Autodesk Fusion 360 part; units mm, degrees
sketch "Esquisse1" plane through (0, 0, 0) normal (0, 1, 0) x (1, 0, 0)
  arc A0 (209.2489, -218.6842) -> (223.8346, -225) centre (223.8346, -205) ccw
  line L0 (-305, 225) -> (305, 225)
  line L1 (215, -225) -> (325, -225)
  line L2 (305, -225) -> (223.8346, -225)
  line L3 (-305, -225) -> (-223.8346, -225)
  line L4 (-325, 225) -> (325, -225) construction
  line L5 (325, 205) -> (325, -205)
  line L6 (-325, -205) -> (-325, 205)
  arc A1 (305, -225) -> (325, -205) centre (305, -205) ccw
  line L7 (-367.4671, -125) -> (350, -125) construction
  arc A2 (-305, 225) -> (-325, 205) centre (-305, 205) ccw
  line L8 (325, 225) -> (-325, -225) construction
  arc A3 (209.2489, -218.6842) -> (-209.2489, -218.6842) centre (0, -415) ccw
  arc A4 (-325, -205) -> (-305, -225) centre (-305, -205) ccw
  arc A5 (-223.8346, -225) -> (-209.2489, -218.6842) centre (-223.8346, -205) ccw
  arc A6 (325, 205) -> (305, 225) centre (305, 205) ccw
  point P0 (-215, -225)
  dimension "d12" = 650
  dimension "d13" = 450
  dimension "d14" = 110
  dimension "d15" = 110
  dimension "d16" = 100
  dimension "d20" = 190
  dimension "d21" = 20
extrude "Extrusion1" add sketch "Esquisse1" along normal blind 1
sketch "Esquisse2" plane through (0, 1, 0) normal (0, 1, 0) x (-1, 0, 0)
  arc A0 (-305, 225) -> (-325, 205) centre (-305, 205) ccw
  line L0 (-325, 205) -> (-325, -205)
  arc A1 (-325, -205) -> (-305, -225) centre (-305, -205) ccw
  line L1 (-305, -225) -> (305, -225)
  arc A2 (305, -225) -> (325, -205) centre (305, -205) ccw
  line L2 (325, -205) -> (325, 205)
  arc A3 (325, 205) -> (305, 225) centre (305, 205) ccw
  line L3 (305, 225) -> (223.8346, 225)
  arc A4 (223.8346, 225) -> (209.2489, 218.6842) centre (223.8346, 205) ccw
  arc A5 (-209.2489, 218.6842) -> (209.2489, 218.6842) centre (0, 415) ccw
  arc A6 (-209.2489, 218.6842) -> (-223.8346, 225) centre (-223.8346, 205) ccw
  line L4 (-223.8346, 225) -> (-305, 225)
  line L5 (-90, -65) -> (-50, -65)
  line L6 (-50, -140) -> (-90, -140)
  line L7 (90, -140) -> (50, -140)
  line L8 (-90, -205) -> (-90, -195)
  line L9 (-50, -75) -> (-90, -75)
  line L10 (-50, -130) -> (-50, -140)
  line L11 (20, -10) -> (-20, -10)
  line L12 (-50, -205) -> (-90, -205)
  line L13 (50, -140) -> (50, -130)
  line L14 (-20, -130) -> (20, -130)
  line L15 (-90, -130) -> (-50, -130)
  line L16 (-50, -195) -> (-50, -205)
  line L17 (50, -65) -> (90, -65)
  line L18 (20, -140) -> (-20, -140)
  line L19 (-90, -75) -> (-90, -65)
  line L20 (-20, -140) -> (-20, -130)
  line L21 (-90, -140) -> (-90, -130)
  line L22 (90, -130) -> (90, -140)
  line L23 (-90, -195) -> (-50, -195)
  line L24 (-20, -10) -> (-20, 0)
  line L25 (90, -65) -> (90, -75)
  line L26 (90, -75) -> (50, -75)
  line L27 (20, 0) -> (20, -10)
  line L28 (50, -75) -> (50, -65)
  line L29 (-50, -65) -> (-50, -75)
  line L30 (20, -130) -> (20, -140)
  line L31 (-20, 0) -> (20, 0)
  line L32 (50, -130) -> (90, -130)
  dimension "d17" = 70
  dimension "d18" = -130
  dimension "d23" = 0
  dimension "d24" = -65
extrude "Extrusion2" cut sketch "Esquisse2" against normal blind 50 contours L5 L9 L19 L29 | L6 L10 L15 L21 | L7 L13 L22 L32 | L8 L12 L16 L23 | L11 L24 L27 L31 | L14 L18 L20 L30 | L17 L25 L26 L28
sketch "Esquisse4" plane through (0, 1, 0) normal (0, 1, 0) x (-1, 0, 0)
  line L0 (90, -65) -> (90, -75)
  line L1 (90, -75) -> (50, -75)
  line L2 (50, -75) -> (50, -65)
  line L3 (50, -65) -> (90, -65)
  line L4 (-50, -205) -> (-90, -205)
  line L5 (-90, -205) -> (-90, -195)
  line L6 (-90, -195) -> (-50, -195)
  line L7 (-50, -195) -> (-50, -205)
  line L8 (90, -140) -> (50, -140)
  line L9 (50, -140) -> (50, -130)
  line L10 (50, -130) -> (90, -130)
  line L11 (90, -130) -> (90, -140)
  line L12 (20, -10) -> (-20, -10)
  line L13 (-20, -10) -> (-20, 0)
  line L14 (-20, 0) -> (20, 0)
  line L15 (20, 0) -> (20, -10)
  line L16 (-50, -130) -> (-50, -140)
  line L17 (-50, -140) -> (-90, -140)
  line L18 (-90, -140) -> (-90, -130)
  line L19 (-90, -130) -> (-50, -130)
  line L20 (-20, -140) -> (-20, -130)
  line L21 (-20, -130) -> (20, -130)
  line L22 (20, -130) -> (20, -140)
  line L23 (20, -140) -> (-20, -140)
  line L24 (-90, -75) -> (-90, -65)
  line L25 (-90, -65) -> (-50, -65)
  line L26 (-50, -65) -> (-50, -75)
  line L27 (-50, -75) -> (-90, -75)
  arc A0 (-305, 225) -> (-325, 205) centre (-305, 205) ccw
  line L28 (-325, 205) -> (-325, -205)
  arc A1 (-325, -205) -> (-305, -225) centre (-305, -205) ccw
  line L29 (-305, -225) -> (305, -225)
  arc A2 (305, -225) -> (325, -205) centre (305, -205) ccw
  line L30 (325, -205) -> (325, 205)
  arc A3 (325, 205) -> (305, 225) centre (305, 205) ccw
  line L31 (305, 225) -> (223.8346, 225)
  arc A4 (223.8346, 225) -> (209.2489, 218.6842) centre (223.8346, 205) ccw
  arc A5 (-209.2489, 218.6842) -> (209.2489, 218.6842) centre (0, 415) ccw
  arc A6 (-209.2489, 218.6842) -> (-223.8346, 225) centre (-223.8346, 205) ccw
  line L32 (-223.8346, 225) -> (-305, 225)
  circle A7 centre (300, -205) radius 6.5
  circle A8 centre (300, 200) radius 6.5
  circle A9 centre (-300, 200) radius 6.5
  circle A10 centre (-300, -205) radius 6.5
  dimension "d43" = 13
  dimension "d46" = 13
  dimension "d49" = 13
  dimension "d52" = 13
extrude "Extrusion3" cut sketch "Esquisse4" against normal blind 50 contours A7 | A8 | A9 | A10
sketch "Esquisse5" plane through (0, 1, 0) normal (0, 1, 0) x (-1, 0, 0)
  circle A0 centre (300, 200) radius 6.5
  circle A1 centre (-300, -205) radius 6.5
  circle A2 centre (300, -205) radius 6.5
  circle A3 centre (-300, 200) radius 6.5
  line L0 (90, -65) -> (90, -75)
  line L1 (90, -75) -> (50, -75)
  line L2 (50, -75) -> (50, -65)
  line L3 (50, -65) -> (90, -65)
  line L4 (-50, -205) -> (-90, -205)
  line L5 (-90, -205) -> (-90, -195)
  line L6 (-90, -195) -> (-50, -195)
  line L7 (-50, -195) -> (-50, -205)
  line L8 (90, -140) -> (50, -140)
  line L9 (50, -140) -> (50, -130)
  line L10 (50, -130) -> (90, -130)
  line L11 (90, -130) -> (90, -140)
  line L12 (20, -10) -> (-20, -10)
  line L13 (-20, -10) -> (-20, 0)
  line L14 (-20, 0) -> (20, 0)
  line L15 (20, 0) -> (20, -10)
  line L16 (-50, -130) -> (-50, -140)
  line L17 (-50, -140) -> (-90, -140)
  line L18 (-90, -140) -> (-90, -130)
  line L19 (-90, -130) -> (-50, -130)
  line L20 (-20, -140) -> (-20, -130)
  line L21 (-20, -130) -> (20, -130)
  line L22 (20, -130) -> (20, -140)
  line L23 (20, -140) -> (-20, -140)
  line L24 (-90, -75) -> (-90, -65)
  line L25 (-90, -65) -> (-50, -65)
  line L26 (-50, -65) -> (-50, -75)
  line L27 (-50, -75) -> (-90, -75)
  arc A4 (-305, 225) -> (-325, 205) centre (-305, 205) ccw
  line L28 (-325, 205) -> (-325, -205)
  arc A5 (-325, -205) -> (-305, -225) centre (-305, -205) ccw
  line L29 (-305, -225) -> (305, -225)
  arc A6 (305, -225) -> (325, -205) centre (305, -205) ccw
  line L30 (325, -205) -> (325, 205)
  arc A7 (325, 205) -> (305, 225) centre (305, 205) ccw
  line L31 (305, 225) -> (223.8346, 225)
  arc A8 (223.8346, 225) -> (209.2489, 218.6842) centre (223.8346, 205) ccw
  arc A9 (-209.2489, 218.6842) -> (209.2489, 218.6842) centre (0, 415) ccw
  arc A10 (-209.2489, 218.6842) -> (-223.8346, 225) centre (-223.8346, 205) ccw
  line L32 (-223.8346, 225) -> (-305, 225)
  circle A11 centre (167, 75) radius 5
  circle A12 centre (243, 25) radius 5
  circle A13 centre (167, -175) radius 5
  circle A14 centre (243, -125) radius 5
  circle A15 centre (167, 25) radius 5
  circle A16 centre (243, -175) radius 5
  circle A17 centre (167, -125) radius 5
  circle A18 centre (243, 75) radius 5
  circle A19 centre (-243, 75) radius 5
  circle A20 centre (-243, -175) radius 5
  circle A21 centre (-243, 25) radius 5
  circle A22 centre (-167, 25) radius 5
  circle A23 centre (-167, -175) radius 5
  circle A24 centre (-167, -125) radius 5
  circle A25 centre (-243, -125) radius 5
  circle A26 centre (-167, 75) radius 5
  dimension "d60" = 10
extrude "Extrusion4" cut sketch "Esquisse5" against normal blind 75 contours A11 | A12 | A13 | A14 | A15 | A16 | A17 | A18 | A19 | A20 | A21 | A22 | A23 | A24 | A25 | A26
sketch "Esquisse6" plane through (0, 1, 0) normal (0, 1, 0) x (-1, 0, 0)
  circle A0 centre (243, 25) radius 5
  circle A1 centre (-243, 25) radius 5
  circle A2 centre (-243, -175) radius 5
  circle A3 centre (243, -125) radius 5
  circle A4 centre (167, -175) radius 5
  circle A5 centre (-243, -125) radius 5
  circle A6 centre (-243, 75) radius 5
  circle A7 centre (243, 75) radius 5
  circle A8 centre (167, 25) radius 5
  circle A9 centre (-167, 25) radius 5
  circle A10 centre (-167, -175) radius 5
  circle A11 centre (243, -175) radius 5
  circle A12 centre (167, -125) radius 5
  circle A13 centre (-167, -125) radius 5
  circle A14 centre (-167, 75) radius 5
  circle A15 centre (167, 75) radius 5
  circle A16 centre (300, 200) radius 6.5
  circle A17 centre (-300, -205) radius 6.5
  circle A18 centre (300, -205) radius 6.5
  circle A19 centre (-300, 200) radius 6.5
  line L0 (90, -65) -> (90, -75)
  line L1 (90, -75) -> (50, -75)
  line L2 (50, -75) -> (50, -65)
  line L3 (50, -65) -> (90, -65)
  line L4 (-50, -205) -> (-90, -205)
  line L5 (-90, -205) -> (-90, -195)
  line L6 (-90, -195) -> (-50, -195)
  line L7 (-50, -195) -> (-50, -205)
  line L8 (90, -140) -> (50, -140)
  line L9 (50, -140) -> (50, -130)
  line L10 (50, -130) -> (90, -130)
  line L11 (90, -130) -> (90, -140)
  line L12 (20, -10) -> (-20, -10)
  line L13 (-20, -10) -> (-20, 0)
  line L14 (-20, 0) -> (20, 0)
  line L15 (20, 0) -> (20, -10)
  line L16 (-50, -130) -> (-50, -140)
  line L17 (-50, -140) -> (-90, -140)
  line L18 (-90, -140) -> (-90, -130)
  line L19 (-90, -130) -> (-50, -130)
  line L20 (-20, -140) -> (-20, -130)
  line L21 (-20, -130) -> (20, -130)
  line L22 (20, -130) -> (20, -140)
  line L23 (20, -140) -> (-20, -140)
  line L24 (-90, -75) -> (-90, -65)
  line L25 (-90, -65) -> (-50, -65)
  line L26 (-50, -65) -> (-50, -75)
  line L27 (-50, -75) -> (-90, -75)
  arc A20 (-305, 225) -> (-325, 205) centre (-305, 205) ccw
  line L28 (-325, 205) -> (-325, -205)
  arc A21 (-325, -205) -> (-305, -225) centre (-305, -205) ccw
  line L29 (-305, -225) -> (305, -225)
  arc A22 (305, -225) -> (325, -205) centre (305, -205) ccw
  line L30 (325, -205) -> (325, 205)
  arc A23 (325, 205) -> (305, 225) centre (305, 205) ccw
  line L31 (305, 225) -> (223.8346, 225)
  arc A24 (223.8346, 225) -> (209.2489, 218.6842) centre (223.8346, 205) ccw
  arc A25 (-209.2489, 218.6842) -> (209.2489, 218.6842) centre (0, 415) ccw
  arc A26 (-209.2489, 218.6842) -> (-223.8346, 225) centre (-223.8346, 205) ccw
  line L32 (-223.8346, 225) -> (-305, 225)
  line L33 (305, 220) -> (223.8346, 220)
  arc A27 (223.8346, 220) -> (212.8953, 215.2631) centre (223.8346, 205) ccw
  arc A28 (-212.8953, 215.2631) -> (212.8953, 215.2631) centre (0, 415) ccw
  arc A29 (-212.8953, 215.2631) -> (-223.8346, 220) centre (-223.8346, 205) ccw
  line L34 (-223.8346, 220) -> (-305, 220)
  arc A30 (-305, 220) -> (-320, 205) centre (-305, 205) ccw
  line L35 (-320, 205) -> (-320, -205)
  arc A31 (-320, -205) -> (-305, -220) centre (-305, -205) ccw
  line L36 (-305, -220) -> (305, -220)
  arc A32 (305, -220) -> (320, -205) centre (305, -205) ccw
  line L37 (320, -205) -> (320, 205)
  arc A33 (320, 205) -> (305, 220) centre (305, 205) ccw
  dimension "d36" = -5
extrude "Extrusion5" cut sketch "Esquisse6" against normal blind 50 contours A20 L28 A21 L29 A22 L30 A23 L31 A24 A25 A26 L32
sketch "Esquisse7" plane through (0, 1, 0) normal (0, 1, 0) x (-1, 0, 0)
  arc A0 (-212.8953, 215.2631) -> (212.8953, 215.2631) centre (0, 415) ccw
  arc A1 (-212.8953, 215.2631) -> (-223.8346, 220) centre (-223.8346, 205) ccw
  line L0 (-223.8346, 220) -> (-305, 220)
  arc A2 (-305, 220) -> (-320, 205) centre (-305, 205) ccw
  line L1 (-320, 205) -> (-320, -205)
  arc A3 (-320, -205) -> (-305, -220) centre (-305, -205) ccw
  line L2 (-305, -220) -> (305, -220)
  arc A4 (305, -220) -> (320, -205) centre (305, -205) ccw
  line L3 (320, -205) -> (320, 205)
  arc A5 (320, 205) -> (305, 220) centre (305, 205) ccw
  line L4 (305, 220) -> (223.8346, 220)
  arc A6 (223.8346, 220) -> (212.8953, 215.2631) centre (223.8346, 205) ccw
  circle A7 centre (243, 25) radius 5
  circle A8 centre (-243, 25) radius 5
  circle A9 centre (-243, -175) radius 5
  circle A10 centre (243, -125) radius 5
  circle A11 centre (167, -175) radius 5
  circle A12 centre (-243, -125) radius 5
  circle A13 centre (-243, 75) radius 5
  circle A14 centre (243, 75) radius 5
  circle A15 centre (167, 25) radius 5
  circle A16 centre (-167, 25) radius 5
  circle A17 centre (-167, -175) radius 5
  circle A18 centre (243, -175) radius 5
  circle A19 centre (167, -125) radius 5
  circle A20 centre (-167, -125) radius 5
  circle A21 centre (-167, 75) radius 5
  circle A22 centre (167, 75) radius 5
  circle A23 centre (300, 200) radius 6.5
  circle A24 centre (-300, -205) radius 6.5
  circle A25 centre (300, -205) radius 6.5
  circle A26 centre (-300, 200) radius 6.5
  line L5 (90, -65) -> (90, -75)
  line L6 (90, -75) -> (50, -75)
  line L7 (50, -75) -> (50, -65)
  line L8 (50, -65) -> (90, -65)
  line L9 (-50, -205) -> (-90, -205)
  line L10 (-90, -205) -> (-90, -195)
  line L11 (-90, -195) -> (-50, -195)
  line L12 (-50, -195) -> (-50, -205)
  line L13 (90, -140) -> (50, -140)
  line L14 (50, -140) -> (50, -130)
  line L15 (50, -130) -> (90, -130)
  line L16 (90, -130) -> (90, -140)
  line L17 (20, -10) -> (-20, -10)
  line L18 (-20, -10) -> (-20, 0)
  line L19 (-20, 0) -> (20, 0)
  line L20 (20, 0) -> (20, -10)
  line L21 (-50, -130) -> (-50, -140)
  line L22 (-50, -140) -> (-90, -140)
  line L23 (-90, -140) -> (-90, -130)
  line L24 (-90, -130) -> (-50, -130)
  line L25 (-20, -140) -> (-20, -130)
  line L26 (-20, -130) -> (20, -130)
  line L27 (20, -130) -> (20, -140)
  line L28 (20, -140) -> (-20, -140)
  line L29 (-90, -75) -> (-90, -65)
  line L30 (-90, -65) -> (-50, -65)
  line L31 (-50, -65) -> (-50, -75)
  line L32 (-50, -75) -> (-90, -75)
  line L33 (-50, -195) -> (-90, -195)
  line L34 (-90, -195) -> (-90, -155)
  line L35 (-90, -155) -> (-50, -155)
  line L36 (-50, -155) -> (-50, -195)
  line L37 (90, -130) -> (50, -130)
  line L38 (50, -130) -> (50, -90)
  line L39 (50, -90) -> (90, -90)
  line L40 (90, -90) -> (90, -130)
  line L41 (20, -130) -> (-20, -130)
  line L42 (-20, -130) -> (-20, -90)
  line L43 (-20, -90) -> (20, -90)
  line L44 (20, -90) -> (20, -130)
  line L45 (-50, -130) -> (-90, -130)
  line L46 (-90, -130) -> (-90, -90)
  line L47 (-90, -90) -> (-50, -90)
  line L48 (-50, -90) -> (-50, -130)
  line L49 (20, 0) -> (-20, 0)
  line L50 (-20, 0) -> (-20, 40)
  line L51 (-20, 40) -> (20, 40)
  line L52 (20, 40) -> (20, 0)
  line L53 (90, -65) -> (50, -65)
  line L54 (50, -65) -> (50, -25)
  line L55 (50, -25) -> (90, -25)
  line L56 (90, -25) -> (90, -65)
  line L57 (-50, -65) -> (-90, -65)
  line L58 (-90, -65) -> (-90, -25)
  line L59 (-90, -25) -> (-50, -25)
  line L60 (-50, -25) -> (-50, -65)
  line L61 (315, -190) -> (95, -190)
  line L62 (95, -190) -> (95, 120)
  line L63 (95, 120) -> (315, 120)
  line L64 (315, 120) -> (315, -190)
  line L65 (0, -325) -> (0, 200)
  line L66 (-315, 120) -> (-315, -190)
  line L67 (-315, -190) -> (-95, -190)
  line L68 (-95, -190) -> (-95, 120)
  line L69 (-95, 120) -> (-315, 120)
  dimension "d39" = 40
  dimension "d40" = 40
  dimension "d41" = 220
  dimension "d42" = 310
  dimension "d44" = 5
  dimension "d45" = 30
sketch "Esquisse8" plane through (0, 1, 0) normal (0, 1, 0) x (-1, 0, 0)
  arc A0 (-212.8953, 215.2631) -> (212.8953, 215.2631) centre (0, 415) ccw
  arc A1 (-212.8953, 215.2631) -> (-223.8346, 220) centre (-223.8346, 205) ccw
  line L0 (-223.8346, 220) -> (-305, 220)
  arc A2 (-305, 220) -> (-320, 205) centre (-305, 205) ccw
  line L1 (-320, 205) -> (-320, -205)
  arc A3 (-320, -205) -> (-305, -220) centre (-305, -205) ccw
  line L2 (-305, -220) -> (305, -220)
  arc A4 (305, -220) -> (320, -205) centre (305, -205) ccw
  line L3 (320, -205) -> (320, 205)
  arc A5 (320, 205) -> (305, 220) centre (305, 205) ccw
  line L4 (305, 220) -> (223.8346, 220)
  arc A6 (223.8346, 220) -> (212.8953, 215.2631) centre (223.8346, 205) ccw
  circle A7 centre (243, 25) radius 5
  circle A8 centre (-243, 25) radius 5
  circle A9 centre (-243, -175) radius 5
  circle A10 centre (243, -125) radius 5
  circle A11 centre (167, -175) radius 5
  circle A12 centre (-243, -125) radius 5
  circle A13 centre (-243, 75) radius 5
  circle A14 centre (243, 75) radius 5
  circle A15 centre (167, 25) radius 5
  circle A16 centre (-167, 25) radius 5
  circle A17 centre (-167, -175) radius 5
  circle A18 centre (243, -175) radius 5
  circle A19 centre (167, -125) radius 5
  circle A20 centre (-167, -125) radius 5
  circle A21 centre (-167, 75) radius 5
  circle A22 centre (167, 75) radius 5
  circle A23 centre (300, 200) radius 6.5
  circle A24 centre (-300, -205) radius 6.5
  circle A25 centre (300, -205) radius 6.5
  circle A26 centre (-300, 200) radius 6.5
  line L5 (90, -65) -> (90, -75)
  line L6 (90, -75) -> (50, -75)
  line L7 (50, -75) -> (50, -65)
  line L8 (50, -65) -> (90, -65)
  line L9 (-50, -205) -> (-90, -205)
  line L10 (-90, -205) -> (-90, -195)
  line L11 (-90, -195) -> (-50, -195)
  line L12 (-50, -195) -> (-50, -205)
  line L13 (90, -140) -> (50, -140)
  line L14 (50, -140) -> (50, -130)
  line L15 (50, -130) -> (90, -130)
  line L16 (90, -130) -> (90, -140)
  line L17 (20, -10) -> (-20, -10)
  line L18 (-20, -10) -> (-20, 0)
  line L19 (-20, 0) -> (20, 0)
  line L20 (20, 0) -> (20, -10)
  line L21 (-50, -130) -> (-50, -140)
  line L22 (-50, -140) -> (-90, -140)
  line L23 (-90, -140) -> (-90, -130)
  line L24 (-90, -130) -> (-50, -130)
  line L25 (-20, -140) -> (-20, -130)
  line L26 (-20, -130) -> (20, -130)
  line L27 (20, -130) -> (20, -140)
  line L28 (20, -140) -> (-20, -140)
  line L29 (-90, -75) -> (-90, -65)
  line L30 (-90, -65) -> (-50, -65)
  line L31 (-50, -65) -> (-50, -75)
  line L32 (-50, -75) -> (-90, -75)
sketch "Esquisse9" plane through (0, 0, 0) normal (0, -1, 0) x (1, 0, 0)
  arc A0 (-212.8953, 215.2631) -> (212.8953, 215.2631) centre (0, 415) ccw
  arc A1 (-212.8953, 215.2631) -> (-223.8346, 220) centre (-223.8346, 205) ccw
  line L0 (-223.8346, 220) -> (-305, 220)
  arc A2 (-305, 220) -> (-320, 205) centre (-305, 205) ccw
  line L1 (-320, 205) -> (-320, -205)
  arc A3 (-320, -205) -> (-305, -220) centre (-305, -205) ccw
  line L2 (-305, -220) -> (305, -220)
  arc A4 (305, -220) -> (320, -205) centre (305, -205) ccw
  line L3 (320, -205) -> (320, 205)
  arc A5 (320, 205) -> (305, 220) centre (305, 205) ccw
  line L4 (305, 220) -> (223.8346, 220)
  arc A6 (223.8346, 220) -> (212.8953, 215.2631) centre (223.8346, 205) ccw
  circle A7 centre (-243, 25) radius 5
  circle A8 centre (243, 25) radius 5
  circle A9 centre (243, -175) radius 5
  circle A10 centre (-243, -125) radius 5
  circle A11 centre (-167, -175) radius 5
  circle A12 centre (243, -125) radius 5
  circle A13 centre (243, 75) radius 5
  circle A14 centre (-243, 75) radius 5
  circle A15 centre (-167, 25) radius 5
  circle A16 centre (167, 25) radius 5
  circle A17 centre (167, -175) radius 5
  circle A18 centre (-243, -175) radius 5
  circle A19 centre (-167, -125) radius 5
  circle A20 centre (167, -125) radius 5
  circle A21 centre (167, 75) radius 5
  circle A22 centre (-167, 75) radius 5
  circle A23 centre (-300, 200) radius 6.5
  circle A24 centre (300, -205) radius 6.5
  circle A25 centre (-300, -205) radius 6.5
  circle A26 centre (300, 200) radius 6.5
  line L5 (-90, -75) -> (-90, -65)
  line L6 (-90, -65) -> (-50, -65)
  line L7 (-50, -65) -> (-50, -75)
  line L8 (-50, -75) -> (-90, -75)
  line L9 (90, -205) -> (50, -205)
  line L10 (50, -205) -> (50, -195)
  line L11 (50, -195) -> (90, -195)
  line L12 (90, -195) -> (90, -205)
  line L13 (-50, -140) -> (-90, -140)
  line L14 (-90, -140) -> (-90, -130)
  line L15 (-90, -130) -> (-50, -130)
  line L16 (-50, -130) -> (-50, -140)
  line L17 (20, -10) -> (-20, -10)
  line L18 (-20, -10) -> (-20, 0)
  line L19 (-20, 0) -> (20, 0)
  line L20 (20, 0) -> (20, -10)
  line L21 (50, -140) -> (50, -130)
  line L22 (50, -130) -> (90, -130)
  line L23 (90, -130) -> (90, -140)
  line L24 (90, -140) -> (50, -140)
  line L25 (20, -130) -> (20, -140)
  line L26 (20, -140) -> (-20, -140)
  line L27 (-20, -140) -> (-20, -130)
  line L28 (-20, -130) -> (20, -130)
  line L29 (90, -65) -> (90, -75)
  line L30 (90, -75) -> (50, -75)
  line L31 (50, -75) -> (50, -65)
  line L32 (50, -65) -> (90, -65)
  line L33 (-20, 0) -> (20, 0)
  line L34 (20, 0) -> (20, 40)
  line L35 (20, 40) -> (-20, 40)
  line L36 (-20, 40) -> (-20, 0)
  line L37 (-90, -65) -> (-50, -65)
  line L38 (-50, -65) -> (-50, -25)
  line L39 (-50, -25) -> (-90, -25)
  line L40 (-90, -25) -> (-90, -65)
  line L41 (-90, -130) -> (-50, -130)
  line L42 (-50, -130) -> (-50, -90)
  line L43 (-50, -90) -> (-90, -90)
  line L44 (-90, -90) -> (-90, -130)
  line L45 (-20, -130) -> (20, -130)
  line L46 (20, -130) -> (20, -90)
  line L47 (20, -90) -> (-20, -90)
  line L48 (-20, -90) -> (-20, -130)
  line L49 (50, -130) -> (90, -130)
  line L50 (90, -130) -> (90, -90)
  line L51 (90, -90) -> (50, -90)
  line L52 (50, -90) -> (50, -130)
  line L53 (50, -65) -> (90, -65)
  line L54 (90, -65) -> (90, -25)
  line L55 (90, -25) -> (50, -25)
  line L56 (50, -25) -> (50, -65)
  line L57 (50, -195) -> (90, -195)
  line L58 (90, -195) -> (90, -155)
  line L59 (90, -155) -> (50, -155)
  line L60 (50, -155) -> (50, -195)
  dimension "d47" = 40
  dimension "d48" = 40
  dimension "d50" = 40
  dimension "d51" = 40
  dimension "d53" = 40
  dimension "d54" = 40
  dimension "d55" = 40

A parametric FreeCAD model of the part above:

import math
import FreeCAD as App
import Part
import Sketcher

V = App.Vector
Q = App.Units.Quantity

doc = App.newDocument("Part")
body = doc.addObject("PartDesign::Body", "Body")

# Sketch on XZ plane
sketch1 = body.newObject("Sketcher::SketchObject", "Sketch")
sketch1.AttachmentSupport = (doc.getObject("XZ_Plane"), [""])
sketch1.MapMode = "FlatFace"
sketch1.addGeometry([
    Part.ArcOfCircle(Part.Circle(V(0, 415, 0), V(0, 0, 1), 287), math.radians(-137), math.radians(-43)),  # 0
    Part.ArcOfCircle(Part.Circle(V(224, 205, 0), V(0, 0, 1), 20), math.radians(90), math.radians(137)),  # 1
    Part.LineSegment(V(224, 225, 0), V(305, 225, 0)),  # 2
    Part.ArcOfCircle(Part.Circle(V(305, 205, 0), V(0, 0, 1), 20), math.radians(0), math.radians(90)),  # 3
    Part.LineSegment(V(325, 205, 0), V(325, -205, 0)),  # 4
    Part.ArcOfCircle(Part.Circle(V(305, -205, 0), V(0, 0, 1), 20), math.radians(-90), math.radians(0)),  # 5
    Part.LineSegment(V(305, -225, 0), V(-305, -225, 0)),  # 6
    Part.ArcOfCircle(Part.Circle(V(-305, -205, 0), V(0, 0, 1), 20), math.radians(180), math.radians(270)),  # 7
    Part.LineSegment(V(-325, -205, 0), V(-325, 205, 0)),  # 8
    Part.ArcOfCircle(Part.Circle(V(-305, 205, 0), V(0, 0, 1), 20), math.radians(90), math.radians(180)),  # 9
    Part.LineSegment(V(-305, 225, 0), V(-224, 225, 0)),  # 10
    Part.ArcOfCircle(Part.Circle(V(-224, 205, 0), V(0, 0, 1), 20), math.radians(43), math.radians(90)),  # 11
], False)
sketch1.addConstraint([
    Sketcher.Constraint("Tangent", 0, 2, 1, 2),
    Sketcher.Constraint("Tangent", 1, 1, 2, 1),
    Sketcher.Constraint("Tangent", 2, 2, 3, 2),
    Sketcher.Constraint("Tangent", 3, 1, 4, 1),
    Sketcher.Constraint("Tangent", 4, 2, 5, 2),
    Sketcher.Constraint("Tangent", 5, 1, 6, 1),
    Sketcher.Constraint("Tangent", 6, 2, 7, 2),
    Sketcher.Constraint("Tangent", 7, 1, 8, 1),
    Sketcher.Constraint("Tangent", 8, 2, 9, 2),
    Sketcher.Constraint("Tangent", 9, 1, 10, 1),
    Sketcher.Constraint("Tangent", 10, 2, 11, 2),
    Sketcher.Constraint("Tangent", 11, 1, 0, 1),
    Sketcher.Constraint("Horizontal", 2),
    Sketcher.Constraint("Vertical", 4),
    Sketcher.Constraint("Horizontal", 6),
    Sketcher.Constraint("Vertical", 8),
    Sketcher.Constraint("Horizontal", 10),
    Sketcher.Constraint("Equal", 1, 3),
    Sketcher.Constraint("Equal", 3, 5),
    Sketcher.Constraint("Equal", 5, 7),
    Sketcher.Constraint("Equal", 7, 9),
    Sketcher.Constraint("Equal", 9, 11),
    Sketcher.Constraint("Symmetric", 3, 3, 7, 3, -1, 1),
    Sketcher.Constraint("Symmetric", 1, 3, 11, 3, -2),
    Sketcher.Constraint("Radius", 1, Q("20 mm")),
    Sketcher.Constraint("DistanceY", 1, 1, 0, 3, Q("190 mm")),
    Sketcher.Constraint("DistanceX", 6, 2, 6, 1, Q("610 mm")),
    Sketcher.Constraint("DistanceY", 4, 2, 4, 1, Q("410 mm")),
    Sketcher.Constraint("Radius", 0, Q("286.9233 mm")),
])
pad1 = body.newObject("PartDesign::Pad", "Pad")
pad1.Profile = sketch1
pad1.Length = 1
pad1.Reversed = True

# Sketch on XZ plane
sketch2 = body.newObject("Sketcher::SketchObject", "Sketch001")
sketch2.AttachmentSupport = (doc.getObject("XZ_Plane"), [""])
sketch2.MapMode = "FlatFace"
sketch2.AttachmentOffset = App.Placement(V(0, 0, -1), App.Rotation())
sketch2.addGeometry([
    Part.LineSegment(V(50, -65, 0), V(90, -65, 0)),  # 0
    Part.LineSegment(V(90, -65, 0), V(90, -75, 0)),  # 1
    Part.LineSegment(V(90, -75, 0), V(50, -75, 0)),  # 2
    Part.LineSegment(V(50, -75, 0), V(50, -65, 0)),  # 3
    Part.LineSegment(V(90, -140, 0), V(50, -140, 0)),  # 4
    Part.LineSegment(V(50, -140, 0), V(50, -130, 0)),  # 5
    Part.LineSegment(V(50, -130, 0), V(90, -130, 0)),  # 6
    Part.LineSegment(V(90, -130, 0), V(90, -140, 0)),  # 7
    Part.LineSegment(V(-50, -140, 0), V(-90, -140, 0)),  # 8
    Part.LineSegment(V(-90, -140, 0), V(-90, -130, 0)),  # 9
    Part.LineSegment(V(-90, -130, 0), V(-50, -130, 0)),  # 10
    Part.LineSegment(V(-50, -130, 0), V(-50, -140, 0)),  # 11
    Part.LineSegment(V(90, -195, 0), V(90, -205, 0)),  # 12
    Part.LineSegment(V(90, -205, 0), V(50, -205, 0)),  # 13
    Part.LineSegment(V(50, -205, 0), V(50, -195, 0)),  # 14
    Part.LineSegment(V(50, -195, 0), V(90, -195, 0)),  # 15
    Part.LineSegment(V(20, -10, 0), V(-20, -10, 0)),  # 16
    Part.LineSegment(V(-20, -10, 0), V(-20, 0, 0)),  # 17
    Part.LineSegment(V(-20, 0, 0), V(20, 0, 0)),  # 18
    Part.LineSegment(V(20, 0, 0), V(20, -10, 0)),  # 19
    Part.LineSegment(V(-20, -130, 0), V(20, -130, 0)),  # 20
    Part.LineSegment(V(20, -130, 0), V(20, -140, 0)),  # 21
    Part.LineSegment(V(20, -140, 0), V(-20, -140, 0)),  # 22
    Part.LineSegment(V(-20, -140, 0), V(-20, -130, 0)),  # 23
    Part.LineSegment(V(-90, -65, 0), V(-50, -65, 0)),  # 24
    Part.LineSegment(V(-50, -65, 0), V(-50, -75, 0)),  # 25
    Part.LineSegment(V(-50, -75, 0), V(-90, -75, 0)),  # 26
    Part.LineSegment(V(-90, -75, 0), V(-90, -65, 0)),  # 27
], False)
sketch2.addConstraint([
    Sketcher.Constraint("Coincident", 0, 2, 1, 1),
    Sketcher.Constraint("Coincident", 1, 2, 2, 1),
    Sketcher.Constraint("Coincident", 2, 2, 3, 1),
    Sketcher.Constraint("Coincident", 3, 2, 0, 1),
    Sketcher.Constraint("Coincident", 4, 2, 5, 1),
    Sketcher.Constraint("Coincident", 5, 2, 6, 1),
    Sketcher.Constraint("Coincident", 6, 2, 7, 1),
    Sketcher.Constraint("Coincident", 7, 2, 4, 1),
    Sketcher.Constraint("Coincident", 8, 2, 9, 1),
    Sketcher.Constraint("Coincident", 9, 2, 10, 1),
    Sketcher.Constraint("Coincident", 10, 2, 11, 1),
    Sketcher.Constraint("Coincident", 11, 2, 8, 1),
    Sketcher.Constraint("Coincident", 12, 2, 13, 1),
    Sketcher.Constraint("Coincident", 13, 2, 14, 1),
    Sketcher.Constraint("Coincident", 14, 2, 15, 1),
    Sketcher.Constraint("Coincident", 15, 2, 12, 1),
    Sketcher.Constraint("Coincident", 16, 2, 17, 1),
    Sketcher.Constraint("Coincident", 17, 2, 18, 1),
    Sketcher.Constraint("Coincident", 18, 2, 19, 1),
    Sketcher.Constraint("Coincident", 19, 2, 16, 1),
    Sketcher.Constraint("Coincident", 20, 2, 21, 1),
    Sketcher.Constraint("Coincident", 21, 2, 22, 1),
    Sketcher.Constraint("Coincident", 22, 2, 23, 1),
    Sketcher.Constraint("Coincident", 23, 2, 20, 1),
    Sketcher.Constraint("Coincident", 24, 2, 25, 1),
    Sketcher.Constraint("Coincident", 25, 2, 26, 1),
    Sketcher.Constraint("Coincident", 26, 2, 27, 1),
    Sketcher.Constraint("Coincident", 27, 2, 24, 1),
    Sketcher.Constraint("Horizontal", 0),
    Sketcher.Constraint("Vertical", 1),
    Sketcher.Constraint("Horizontal", 2),
    Sketcher.Constraint("Vertical", 3),
    Sketcher.Constraint("Horizontal", 4),
    Sketcher.Constraint("Vertical", 5),
    Sketcher.Constraint("Horizontal", 6),
    Sketcher.Constraint("Vertical", 7),
    Sketcher.Constraint("Horizontal", 8),
    Sketcher.Constraint("Vertical", 9),
    Sketcher.Constraint("Horizontal", 10),
    Sketcher.Constraint("Vertical", 11),
    Sketcher.Constraint("Vertical", 12),
    Sketcher.Constraint("Horizontal", 13),
    Sketcher.Constraint("Vertical", 14),
    Sketcher.Constraint("Horizontal", 15),
    Sketcher.Constraint("Horizontal", 16),
    Sketcher.Constraint("Vertical", 17),
    Sketcher.Constraint("Horizontal", 18),
    Sketcher.Constraint("Vertical", 19),
    Sketcher.Constraint("Horizontal", 20),
    Sketcher.Constraint("Vertical", 21),
    Sketcher.Constraint("Horizontal", 22),
    Sketcher.Constraint("Vertical", 23),
    Sketcher.Constraint("Horizontal", 24),
    Sketcher.Constraint("Vertical", 25),
    Sketcher.Constraint("Horizontal", 26),
    Sketcher.Constraint("Vertical", 27),
    Sketcher.Constraint("Symmetric", 17, 2, 18, 2, -1, 1),
    Sketcher.Constraint("Symmetric", 7, 2, 8, 2, -2),
    Sketcher.Constraint("Symmetric", 5, 2, 10, 2, -2),
    Sketcher.Constraint("Symmetric", 3, 2, 24, 2, -2),
    Sketcher.Constraint("Symmetric", 1, 2, 26, 2, -2),
    Sketcher.Constraint("Horizontal", 10, 2, 20, 2),
    Sketcher.Constraint("Horizontal", 11, 2, 21, 2),
    Sketcher.Constraint("Vertical", 3, 2, 4, 2),
    Sketcher.Constraint("Vertical", 1, 2, 6, 2),
    Sketcher.Constraint("Vertical", 7, 2, 12, 2),
    Sketcher.Constraint("Vertical", 5, 2, 13, 2),
    Sketcher.Constraint("Vertical", 19, 2, 20, 2),
    Sketcher.Constraint("Vertical", 17, 2, 22, 2),
    Sketcher.Constraint("Equal", 15, 16),
    Sketcher.Constraint("Equal", 3, 5),
    Sketcher.Constraint("Equal", 11, 12),
    Sketcher.Constraint("Equal", 14, 17),
    Sketcher.Constraint("DistanceY", 0, 2, -1, 1, Q("65 mm")),
    Sketcher.Constraint("DistanceY", 5, 2, -1, 1, Q("130 mm")),
    Sketcher.Constraint("DistanceY", 12, 2, 7, 2, Q("65 mm")),
    Sketcher.Constraint("DistanceX", 16, 2, 3, 2, Q("70 mm")),
    Sketcher.Constraint("DistanceX", 0, 1, 0, 2, Q("40 mm")),
    Sketcher.Constraint("DistanceY", 1, 2, 1, 1, Q("10 mm")),
])
pocket1 = body.newObject("PartDesign::Pocket", "Pocket")
pocket1.Profile = sketch2
pocket1.Length = 50
pocket1.Reversed = True

# Sketch on XZ plane
sketch3 = body.newObject("Sketcher::SketchObject", "Sketch002")
sketch3.AttachmentSupport = (doc.getObject("XZ_Plane"), [""])
sketch3.MapMode = "FlatFace"
sketch3.AttachmentOffset = App.Placement(V(0, 0, -1), App.Rotation())
sketch3.addGeometry([
    Part.Circle(V(-300, -205, 0), V(0, 0, 1), 6),
    Part.Circle(V(-300, 200, 0), V(0, 0, 1), 6),
    Part.Circle(V(300, 200, 0), V(0, 0, 1), 6),
    Part.Circle(V(300, -205, 0), V(0, 0, 1), 6),
], False)
sketch3.addConstraint([
    Sketcher.Constraint("Equal", 0, 1),
    Sketcher.Constraint("Equal", 1, 2),
    Sketcher.Constraint("Equal", 2, 3),
    Sketcher.Constraint("Symmetric", 1, 3, 2, 3, -2),
    Sketcher.Constraint("Symmetric", 0, 3, 3, 3, -2),
    Sketcher.Constraint("Vertical", 0, 3, 1, 3),
    Sketcher.Constraint("Diameter", 0, Q("13 mm")),
    Sketcher.Constraint("DistanceX", 0, 3, -1, 1, Q("300 mm")),
    Sketcher.Constraint("DistanceY", 0, 3, -1, 1, Q("205 mm")),
    Sketcher.Constraint("DistanceY", -1, 1, 1, 3, Q("200 mm")),
])
pocket2 = body.newObject("PartDesign::Pocket", "Pocket001")
pocket2.Profile = sketch3
pocket2.Length = 50
pocket2.Reversed = True

# Sketch on XZ plane
sketch4 = body.newObject("Sketcher::SketchObject", "Sketch003")
sketch4.AttachmentSupport = (doc.getObject("XZ_Plane"), [""])
sketch4.MapMode = "FlatFace"
sketch4.AttachmentOffset = App.Placement(V(0, 0, -1), App.Rotation())
sketch4.addGeometry([
    Part.Circle(V(-167, 75, 0), V(0, 0, 1), 5),  # 0
    Part.Circle(V(-243, 25, 0), V(0, 0, 1), 5),  # 1
    Part.Circle(V(-167, -175, 0), V(0, 0, 1), 5),  # 2
    Part.Circle(V(-243, -125, 0), V(0, 0, 1), 5),  # 3
    Part.Circle(V(-167, 25, 0), V(0, 0, 1), 5),  # 4
    Part.Circle(V(-243, -175, 0), V(0, 0, 1), 5),  # 5
    Part.Circle(V(-167, -125, 0), V(0, 0, 1), 5),  # 6
    Part.Circle(V(-243, 75, 0), V(0, 0, 1), 5),  # 7
    Part.Circle(V(243, 75, 0), V(0, 0, 1), 5),  # 8
    Part.Circle(V(243, -175, 0), V(0, 0, 1), 5),  # 9
    Part.Circle(V(243, 25, 0), V(0, 0, 1), 5),  # 10
    Part.Circle(V(167, 25, 0), V(0, 0, 1), 5),  # 11
    Part.Circle(V(167, -175, 0), V(0, 0, 1), 5),  # 12
    Part.Circle(V(167, -125, 0), V(0, 0, 1), 5),  # 13
    Part.Circle(V(243, -125, 0), V(0, 0, 1), 5),  # 14
    Part.Circle(V(167, 75, 0), V(0, 0, 1), 5),  # 15
], False)
sketch4.addConstraint([
    Sketcher.Constraint("Equal", 0, 1),
    Sketcher.Constraint("Equal", 1, 2),
    Sketcher.Constraint("Equal", 2, 3),
    Sketcher.Constraint("Equal", 3, 4),
    Sketcher.Constraint("Equal", 4, 5),
    Sketcher.Constraint("Equal", 5, 6),
    Sketcher.Constraint("Equal", 6, 7),
    Sketcher.Constraint("Equal", 7, 8),
    Sketcher.Constraint("Equal", 8, 9),
    Sketcher.Constraint("Equal", 9, 10),
    Sketcher.Constraint("Equal", 10, 11),
    Sketcher.Constraint("Equal", 11, 12),
    Sketcher.Constraint("Equal", 12, 13),
    Sketcher.Constraint("Equal", 13, 14),
    Sketcher.Constraint("Equal", 14, 15),
    Sketcher.Constraint("Symmetric", 7, 3, 8, 3, -2),
    Sketcher.Constraint("Symmetric", 5, 3, 9, 3, -2),
    Sketcher.Constraint("Symmetric", 1, 3, 10, 3, -2),
    Sketcher.Constraint("Symmetric", 4, 3, 11, 3, -2),
    Sketcher.Constraint("Symmetric", 2, 3, 12, 3, -2),
    Sketcher.Constraint("Symmetric", 6, 3, 13, 3, -2),
    Sketcher.Constraint("Symmetric", 3, 3, 14, 3, -2),
    Sketcher.Constraint("Symmetric", 0, 3, 15, 3, -2),
    Sketcher.Constraint("Horizontal", 1, 3, 4, 3),
    Sketcher.Constraint("Horizontal", 2, 3, 5, 3),
    Sketcher.Constraint("Horizontal", 3, 3, 6, 3),
    Sketcher.Constraint("Horizontal", 0, 3, 7, 3),
    Sketcher.Constraint("Vertical", 0, 3, 2, 3),
    Sketcher.Constraint("Vertical", 1, 3, 3, 3),
    Sketcher.Constraint("Vertical", 2, 3, 4, 3),
    Sketcher.Constraint("Vertical", 3, 3, 5, 3),
    Sketcher.Constraint("Vertical", 4, 3, 6, 3),
    Sketcher.Constraint("Vertical", 5, 3, 7, 3),
    Sketcher.Constraint("Diameter", 0, Q("10 mm")),
    Sketcher.Constraint("DistanceX", 0, 3, -1, 1, Q("167 mm")),
    Sketcher.Constraint("DistanceY", -1, 1, 0, 3, Q("75 mm")),
    Sketcher.Constraint("DistanceX", 1, 3, -1, 1, Q("243 mm")),
    Sketcher.Constraint("DistanceY", -1, 1, 1, 3, Q("25 mm")),
    Sketcher.Constraint("DistanceY", 2, 3, -1, 1, Q("175 mm")),
    Sketcher.Constraint("DistanceY", 3, 3, -1, 1, Q("125 mm")),
])
pocket3 = body.newObject("PartDesign::Pocket", "Pocket002")
pocket3.Profile = sketch4
pocket3.Length = 75
pocket3.Reversed = True

# Sketch on XZ plane
sketch5 = body.newObject("Sketcher::SketchObject", "Sketch004")
sketch5.AttachmentSupport = (doc.getObject("XZ_Plane"), [""])
sketch5.MapMode = "FlatFace"
sketch5.AttachmentOffset = App.Placement(V(0, 0, -1), App.Rotation())
sketch5.addGeometry([
    Part.LineSegment(V(224, 225, 0), V(305, 225, 0)),  # 0
    Part.ArcOfCircle(Part.Circle(V(305, 205, 0), V(0, 0, 1), 20), math.radians(0), math.radians(90)),  # 1
    Part.LineSegment(V(325, 205, 0), V(325, -205, 0)),  # 2
    Part.ArcOfCircle(Part.Circle(V(305, -205, 0), V(0, 0, 1), 20), math.radians(-90), math.radians(0)),  # 3
    Part.LineSegment(V(305, -225, 0), V(-305, -225, 0)),  # 4
    Part.ArcOfCircle(Part.Circle(V(-305, -205, 0), V(0, 0, 1), 20), math.radians(180), math.radians(270)),  # 5
    Part.LineSegment(V(-325, -205, 0), V(-325, 205, 0)),  # 6
    Part.ArcOfCircle(Part.Circle(V(-305, 205, 0), V(0, 0, 1), 20), math.radians(90), math.radians(180)),  # 7
    Part.LineSegment(V(-305, 225, 0), V(-224, 225, 0)),  # 8
    Part.ArcOfCircle(Part.Circle(V(-224, 205, 0), V(0, 0, 1), 20), math.radians(43), math.radians(90)),  # 9
    Part.ArcOfCircle(Part.Circle(V(0, 415, 0), V(0, 0, 1), 287), math.radians(-137), math.radians(-43)),  # 10
    Part.ArcOfCircle(Part.Circle(V(224, 205, 0), V(0, 0, 1), 20), math.radians(90), math.radians(137)),  # 11
    Part.LineSegment(V(-224, 220, 0), V(-305, 220, 0)),  # 12
    Part.ArcOfCircle(Part.Circle(V(-305, 205, 0), V(0, 0, 1), 15), math.radians(90), math.radians(180)),  # 13
    Part.LineSegment(V(-320, 205, 0), V(-320, -205, 0)),  # 14
    Part.ArcOfCircle(Part.Circle(V(-305, -205, 0), V(0, 0, 1), 15), math.radians(180), math.radians(270)),  # 15
    Part.LineSegment(V(-305, -220, 0), V(305, -220, 0)),  # 16
    Part.ArcOfCircle(Part.Circle(V(305, -205, 0), V(0, 0, 1), 15), math.radians(-90), math.radians(0)),  # 17
    Part.LineSegment(V(320, -205, 0), V(320, 205, 0)),  # 18
    Part.ArcOfCircle(Part.Circle(V(305, 205, 0), V(0, 0, 1), 15), math.radians(0), math.radians(90)),  # 19
    Part.LineSegment(V(305, 220, 0), V(224, 220, 0)),  # 20
    Part.ArcOfCircle(Part.Circle(V(224, 205, 0), V(0, 0, 1), 15), math.radians(90), math.radians(137)),  # 21
    Part.ArcOfCircle(Part.Circle(V(0, 415, 0), V(0, 0, 1), 292), math.radians(-137), math.radians(-43)),  # 22
    Part.ArcOfCircle(Part.Circle(V(-224, 205, 0), V(0, 0, 1), 15), math.radians(43), math.radians(90)),  # 23
], False)
sketch5.addConstraint([
    Sketcher.Constraint("Tangent", 0, 2, 1, 2),
    Sketcher.Constraint("Tangent", 1, 1, 2, 1),
    Sketcher.Constraint("Tangent", 2, 2, 3, 2),
    Sketcher.Constraint("Tangent", 3, 1, 4, 1),
    Sketcher.Constraint("Tangent", 4, 2, 5, 2),
    Sketcher.Constraint("Tangent", 5, 1, 6, 1),
    Sketcher.Constraint("Tangent", 6, 2, 7, 2),
    Sketcher.Constraint("Tangent", 7, 1, 8, 1),
    Sketcher.Constraint("Tangent", 8, 2, 9, 2),
    Sketcher.Constraint("Tangent", 9, 1, 10, 1),
    Sketcher.Constraint("Tangent", 10, 2, 11, 2),
    Sketcher.Constraint("Tangent", 11, 1, 0, 1),
    Sketcher.Constraint("Tangent", 12, 2, 13, 1),
    Sketcher.Constraint("Tangent", 13, 2, 14, 1),
    Sketcher.Constraint("Tangent", 14, 2, 15, 1),
    Sketcher.Constraint("Tangent", 15, 2, 16, 1),
    Sketcher.Constraint("Tangent", 16, 2, 17, 1),
    Sketcher.Constraint("Tangent", 17, 2, 18, 1),
    Sketcher.Constraint("Tangent", 18, 2, 19, 1),
    Sketcher.Constraint("Tangent", 19, 2, 20, 1),
    Sketcher.Constraint("Tangent", 20, 2, 21, 1),
    Sketcher.Constraint("Tangent", 21, 2, 22, 2),
    Sketcher.Constraint("Tangent", 22, 1, 23, 1),
    Sketcher.Constraint("Tangent", 23, 2, 12, 1),
    Sketcher.Constraint("Horizontal", 0),
    Sketcher.Constraint("Vertical", 2),
    Sketcher.Constraint("Horizontal", 4),
    Sketcher.Constraint("Vertical", 6),
    Sketcher.Constraint("Horizontal", 8),
    Sketcher.Constraint("Horizontal", 12),
    Sketcher.Constraint("Vertical", 14),
    Sketcher.Constraint("Horizontal", 16),
    Sketcher.Constraint("Vertical", 18),
    Sketcher.Constraint("Horizontal", 20),
    Sketcher.Constraint("Coincident", 13, 3, 7, 3),
    Sketcher.Constraint("Coincident", 15, 3, 5, 3),
    Sketcher.Constraint("Coincident", 17, 3, 3, 3),
    Sketcher.Constraint("Coincident", 19, 3, 1, 3),
    Sketcher.Constraint("Coincident", 21, 3, 11, 3),
    Sketcher.Constraint("Coincident", 22, 3, 10, 3),
    Sketcher.Constraint("Equal", 1, 3),
    Sketcher.Constraint("Equal", 3, 5),
    Sketcher.Constraint("Equal", 5, 7),
    Sketcher.Constraint("Equal", 7, 9),
    Sketcher.Constraint("Equal", 9, 11),
    Sketcher.Constraint("Equal", 21, 23),
    Sketcher.Constraint("Symmetric", 1, 3, 5, 3, -1, 1),
    Sketcher.Constraint("Symmetric", 9, 3, 11, 3, -2),
    Sketcher.Constraint("Radius", 1, Q("20 mm")),
    Sketcher.Constraint("Radius", 13, Q("15 mm")),
    Sketcher.Constraint("DistanceX", 4, 2, 4, 1, Q("610 mm")),
    Sketcher.Constraint("DistanceY", 2, 2, 2, 1, Q("410 mm")),
    Sketcher.Constraint("DistanceY", -1, 1, 10, 3, Q("415 mm")),
    Sketcher.Constraint("Radius", 10, Q("286.9233 mm")),
])
pocket4 = body.newObject("PartDesign::Pocket", "Pocket003")
pocket4.Profile = sketch5
pocket4.Length = 50
pocket4.Reversed = True

doc.recompute()
